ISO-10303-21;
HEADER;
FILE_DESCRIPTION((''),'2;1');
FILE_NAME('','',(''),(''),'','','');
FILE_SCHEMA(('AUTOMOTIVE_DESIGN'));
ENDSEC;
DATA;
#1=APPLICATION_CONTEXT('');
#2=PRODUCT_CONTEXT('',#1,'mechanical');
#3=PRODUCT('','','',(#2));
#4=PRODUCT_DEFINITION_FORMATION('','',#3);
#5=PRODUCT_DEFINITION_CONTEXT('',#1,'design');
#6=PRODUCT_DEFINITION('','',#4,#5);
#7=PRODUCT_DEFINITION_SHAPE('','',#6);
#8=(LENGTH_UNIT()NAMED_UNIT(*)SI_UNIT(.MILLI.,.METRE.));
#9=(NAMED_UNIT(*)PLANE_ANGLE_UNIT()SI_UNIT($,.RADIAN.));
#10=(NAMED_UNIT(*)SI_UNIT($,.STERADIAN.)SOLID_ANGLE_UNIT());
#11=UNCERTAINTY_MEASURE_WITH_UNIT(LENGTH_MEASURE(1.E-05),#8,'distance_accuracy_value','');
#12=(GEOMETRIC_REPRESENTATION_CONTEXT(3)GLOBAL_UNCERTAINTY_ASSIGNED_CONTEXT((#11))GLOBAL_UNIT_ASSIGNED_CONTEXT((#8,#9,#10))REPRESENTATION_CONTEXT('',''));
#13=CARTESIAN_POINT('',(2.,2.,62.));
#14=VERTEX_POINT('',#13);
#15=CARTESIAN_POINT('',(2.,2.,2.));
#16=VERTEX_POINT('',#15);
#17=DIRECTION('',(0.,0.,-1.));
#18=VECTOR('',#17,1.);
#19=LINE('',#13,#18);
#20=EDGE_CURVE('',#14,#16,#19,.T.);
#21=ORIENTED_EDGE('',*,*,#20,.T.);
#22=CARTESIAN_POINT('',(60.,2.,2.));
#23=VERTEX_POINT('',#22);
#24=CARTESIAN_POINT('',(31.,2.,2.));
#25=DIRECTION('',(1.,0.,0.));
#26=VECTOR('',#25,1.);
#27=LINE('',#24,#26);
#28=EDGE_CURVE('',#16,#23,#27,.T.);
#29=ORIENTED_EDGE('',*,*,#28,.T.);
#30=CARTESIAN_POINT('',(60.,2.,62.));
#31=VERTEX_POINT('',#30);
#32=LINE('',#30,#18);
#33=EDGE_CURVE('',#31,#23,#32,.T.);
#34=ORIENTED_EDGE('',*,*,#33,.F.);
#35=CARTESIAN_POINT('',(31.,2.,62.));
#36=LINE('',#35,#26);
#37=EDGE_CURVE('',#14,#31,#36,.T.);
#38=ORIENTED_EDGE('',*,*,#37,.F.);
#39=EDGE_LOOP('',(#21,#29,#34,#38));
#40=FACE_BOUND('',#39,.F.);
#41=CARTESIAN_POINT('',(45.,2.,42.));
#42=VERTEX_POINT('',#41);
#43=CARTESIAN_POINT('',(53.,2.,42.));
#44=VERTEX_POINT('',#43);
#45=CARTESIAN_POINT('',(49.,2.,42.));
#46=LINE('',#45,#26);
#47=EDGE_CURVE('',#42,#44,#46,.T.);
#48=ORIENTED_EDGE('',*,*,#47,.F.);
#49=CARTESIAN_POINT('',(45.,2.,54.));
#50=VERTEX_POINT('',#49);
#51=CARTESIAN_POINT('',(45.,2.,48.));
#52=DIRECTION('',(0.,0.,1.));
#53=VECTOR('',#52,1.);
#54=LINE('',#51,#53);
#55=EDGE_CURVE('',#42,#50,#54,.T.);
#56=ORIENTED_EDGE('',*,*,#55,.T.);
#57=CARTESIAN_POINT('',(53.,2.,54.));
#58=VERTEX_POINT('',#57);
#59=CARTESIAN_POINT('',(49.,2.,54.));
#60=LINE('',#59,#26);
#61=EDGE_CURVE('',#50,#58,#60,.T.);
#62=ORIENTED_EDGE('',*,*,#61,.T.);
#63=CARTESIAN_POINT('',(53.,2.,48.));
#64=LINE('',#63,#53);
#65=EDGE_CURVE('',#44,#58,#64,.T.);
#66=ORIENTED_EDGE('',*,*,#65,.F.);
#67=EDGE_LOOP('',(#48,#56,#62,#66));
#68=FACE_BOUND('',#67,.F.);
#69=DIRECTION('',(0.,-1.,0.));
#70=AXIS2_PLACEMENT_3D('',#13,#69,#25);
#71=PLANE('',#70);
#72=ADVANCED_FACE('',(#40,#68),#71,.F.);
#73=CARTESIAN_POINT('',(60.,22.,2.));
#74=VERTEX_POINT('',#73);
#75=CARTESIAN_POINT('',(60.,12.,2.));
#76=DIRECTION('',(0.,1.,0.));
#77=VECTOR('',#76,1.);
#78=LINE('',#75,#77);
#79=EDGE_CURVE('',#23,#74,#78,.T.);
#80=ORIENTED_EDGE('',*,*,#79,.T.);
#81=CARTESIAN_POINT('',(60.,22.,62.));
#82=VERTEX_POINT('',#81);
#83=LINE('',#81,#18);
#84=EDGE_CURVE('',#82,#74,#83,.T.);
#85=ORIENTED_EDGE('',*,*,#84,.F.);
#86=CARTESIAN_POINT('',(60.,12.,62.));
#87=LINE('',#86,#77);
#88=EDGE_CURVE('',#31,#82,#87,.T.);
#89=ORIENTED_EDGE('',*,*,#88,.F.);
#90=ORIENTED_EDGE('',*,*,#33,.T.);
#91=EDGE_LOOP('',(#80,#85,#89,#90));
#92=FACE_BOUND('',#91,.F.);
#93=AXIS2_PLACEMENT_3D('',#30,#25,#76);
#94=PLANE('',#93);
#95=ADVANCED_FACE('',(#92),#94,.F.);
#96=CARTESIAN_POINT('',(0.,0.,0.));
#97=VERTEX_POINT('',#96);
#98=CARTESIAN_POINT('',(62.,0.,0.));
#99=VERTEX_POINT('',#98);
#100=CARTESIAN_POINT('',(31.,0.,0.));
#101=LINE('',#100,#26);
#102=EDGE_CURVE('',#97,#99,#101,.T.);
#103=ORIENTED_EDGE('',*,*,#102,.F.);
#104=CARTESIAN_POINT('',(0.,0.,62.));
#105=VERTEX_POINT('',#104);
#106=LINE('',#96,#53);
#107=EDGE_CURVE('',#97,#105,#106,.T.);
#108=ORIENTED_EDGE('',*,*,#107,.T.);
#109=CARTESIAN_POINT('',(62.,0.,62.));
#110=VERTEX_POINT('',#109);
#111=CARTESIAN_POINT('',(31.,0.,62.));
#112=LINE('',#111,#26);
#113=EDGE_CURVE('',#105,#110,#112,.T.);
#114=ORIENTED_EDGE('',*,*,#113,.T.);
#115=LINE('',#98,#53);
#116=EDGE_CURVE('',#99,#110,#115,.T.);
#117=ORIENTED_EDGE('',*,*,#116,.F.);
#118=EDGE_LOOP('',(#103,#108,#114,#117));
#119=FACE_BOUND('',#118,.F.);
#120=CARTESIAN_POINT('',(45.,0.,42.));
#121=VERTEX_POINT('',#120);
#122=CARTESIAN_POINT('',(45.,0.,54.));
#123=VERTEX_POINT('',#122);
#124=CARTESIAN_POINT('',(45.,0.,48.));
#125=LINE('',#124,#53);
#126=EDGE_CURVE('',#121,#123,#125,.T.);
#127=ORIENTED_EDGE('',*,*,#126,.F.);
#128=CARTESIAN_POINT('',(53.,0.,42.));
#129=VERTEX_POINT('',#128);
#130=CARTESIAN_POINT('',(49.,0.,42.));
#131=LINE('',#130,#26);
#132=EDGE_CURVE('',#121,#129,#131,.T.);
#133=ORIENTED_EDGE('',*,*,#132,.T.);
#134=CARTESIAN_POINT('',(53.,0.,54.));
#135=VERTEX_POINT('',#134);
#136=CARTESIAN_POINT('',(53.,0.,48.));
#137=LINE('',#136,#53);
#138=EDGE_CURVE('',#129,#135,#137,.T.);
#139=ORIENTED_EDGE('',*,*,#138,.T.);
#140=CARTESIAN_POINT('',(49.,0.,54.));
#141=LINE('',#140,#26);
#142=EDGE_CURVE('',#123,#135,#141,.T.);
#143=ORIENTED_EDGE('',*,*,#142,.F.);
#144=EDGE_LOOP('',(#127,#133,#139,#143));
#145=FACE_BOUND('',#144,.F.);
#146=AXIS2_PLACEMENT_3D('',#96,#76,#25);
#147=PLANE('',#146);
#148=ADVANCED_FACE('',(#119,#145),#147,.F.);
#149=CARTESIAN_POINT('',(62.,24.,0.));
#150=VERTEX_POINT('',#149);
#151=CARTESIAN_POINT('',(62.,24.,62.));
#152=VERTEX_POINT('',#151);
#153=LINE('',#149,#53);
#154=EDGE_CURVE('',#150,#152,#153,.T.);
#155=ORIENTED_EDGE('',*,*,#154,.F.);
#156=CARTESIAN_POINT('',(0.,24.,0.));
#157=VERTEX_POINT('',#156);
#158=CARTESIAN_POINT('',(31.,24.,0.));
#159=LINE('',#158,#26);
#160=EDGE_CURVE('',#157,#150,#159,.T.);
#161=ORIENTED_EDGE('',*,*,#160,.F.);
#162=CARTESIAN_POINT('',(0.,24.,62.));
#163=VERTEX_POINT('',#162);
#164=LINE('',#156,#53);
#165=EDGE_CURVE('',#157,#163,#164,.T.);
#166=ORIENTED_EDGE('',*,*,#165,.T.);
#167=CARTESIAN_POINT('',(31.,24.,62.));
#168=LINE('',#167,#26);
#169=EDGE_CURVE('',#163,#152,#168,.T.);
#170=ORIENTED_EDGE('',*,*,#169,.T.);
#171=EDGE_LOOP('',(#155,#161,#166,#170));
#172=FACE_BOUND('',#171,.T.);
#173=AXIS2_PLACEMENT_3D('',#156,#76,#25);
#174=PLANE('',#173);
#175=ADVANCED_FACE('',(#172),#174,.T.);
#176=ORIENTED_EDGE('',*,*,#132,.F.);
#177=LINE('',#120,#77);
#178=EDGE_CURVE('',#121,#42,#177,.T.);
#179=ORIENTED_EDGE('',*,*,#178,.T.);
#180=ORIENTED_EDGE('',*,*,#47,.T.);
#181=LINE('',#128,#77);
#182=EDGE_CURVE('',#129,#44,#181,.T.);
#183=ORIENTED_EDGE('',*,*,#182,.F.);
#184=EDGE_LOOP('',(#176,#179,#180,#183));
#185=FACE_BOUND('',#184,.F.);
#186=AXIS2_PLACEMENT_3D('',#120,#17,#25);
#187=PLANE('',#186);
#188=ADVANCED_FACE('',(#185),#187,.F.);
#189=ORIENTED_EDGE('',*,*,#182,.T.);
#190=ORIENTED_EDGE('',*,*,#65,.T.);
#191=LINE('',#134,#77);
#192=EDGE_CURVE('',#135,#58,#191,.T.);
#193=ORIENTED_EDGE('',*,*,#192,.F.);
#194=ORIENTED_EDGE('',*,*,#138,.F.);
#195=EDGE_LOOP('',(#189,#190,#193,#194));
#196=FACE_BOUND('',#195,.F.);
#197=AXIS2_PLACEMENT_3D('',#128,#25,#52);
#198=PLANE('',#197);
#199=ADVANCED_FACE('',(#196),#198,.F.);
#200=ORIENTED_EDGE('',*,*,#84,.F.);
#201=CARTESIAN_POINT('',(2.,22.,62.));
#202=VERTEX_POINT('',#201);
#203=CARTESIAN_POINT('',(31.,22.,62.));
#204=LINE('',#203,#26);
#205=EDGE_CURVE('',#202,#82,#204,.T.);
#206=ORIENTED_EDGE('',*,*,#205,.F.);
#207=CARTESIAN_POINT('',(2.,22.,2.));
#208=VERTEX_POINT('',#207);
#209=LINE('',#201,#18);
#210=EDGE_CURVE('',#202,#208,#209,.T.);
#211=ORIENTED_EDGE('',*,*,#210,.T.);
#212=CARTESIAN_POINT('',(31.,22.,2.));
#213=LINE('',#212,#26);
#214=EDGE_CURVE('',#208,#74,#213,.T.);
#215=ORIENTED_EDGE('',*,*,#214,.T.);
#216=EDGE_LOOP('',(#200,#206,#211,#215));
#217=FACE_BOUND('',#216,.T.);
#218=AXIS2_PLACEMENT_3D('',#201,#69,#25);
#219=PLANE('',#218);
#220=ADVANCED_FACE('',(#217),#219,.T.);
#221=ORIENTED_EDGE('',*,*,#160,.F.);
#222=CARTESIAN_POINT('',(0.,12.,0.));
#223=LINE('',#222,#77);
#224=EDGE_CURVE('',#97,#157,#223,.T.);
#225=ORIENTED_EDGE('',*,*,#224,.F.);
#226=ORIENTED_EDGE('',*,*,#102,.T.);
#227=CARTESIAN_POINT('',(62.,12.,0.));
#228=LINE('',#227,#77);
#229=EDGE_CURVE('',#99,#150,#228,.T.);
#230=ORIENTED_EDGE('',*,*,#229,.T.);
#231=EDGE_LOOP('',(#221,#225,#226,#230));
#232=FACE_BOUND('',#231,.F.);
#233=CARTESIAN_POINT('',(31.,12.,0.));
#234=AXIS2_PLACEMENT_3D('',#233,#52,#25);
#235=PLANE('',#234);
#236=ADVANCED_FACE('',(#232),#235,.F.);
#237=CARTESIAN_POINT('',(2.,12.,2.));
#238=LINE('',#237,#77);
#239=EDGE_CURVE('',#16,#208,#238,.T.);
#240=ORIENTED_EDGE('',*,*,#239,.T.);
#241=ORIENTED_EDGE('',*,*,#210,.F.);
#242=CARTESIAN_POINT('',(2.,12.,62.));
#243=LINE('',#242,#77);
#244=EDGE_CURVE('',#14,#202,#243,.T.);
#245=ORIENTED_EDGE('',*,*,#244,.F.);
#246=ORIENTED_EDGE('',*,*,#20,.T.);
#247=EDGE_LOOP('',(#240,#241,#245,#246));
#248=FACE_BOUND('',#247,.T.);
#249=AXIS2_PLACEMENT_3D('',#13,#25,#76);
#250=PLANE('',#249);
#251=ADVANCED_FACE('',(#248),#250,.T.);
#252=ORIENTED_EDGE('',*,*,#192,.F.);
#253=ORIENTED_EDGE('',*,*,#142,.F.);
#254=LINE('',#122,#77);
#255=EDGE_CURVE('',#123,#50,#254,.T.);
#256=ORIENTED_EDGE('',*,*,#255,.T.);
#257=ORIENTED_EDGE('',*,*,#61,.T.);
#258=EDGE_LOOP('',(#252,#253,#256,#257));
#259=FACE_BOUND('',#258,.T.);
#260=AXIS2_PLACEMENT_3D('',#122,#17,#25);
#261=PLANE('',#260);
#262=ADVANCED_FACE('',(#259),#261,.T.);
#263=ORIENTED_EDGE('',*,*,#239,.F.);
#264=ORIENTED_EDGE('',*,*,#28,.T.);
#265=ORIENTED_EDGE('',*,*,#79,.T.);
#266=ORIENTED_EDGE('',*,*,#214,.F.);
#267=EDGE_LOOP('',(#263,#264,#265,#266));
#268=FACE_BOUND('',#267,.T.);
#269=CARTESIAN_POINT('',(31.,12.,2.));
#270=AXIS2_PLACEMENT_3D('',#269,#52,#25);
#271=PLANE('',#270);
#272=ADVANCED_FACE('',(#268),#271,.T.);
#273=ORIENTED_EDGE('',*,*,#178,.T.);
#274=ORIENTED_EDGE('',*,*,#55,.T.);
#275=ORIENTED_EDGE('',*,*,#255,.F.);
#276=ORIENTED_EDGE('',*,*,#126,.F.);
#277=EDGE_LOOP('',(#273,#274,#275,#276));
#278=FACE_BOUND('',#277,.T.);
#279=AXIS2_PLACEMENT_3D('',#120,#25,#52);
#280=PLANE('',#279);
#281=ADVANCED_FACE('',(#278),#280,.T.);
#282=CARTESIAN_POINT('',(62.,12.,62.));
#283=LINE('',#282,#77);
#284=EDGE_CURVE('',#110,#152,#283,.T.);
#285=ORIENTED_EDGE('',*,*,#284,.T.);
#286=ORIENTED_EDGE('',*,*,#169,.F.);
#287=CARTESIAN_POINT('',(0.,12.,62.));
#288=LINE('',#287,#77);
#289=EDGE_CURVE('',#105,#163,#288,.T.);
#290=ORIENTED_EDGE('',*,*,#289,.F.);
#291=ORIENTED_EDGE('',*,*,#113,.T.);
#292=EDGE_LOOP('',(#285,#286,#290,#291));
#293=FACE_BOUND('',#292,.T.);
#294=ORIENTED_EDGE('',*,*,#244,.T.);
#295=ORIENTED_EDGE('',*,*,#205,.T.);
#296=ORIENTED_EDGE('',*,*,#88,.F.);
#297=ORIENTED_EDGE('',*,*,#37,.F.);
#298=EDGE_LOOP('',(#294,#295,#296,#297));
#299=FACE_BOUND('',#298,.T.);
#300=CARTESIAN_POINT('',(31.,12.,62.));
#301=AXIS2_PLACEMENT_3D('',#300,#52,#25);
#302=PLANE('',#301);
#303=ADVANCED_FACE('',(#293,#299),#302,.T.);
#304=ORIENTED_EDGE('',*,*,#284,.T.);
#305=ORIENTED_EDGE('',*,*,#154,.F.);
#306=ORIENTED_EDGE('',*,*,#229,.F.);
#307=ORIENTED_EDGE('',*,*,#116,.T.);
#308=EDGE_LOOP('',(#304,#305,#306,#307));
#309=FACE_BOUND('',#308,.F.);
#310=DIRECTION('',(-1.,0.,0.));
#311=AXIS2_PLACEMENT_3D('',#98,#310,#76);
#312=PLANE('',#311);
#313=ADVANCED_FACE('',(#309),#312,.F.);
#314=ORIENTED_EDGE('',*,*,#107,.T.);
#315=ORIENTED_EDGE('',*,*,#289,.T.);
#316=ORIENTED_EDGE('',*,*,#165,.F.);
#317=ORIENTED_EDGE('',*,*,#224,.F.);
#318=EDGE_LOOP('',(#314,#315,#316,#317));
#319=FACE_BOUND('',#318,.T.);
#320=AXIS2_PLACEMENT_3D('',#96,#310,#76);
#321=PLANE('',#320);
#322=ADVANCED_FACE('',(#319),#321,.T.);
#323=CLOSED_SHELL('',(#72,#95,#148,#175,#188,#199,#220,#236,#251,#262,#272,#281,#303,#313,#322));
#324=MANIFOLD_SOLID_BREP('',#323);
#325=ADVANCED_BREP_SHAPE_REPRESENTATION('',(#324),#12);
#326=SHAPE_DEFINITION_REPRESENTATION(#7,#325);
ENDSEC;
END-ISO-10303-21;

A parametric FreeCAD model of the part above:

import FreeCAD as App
import Part
import Sketcher
Q = App.Units.Quantity


def add_polygon(sketch, points):
    """Adds a closed chain of lines whose ends are joined by coincident constraints."""
    first, n = sketch.GeometryCount, len(points)
    for a, b in zip(points, points[1:] + points[:1]):
        sketch.addGeometry(Part.LineSegment(App.Vector(*a, 0), App.Vector(*b, 0)), False)
    for i in range(n):
        sketch.addConstraint(Sketcher.Constraint("Coincident", first + i, 2, first + (i + 1) % n, 1))

doc = App.newDocument("Part")
body = doc.addObject("PartDesign::Body", "Body")

# Sketch on XY plane
sketch1 = doc.addObject("Sketcher::SketchObject", "Sketch")
body.addObject(sketch1)
sketch1.AttachmentSupport = (doc.XY_Plane, [""])
sketch1.MapMode = "FlatFace"
add_polygon(sketch1, [(0, 24), (0, 0), (62, 0), (62, 24)])  # lines 0-3
sketch1.addConstraint([
    Sketcher.Constraint("Vertical", 0),
    Sketcher.Constraint("Horizontal", 1),
    Sketcher.Constraint("Vertical", 2),
    Sketcher.Constraint("Horizontal", 3),
    Sketcher.Constraint("Coincident", 0, 2, -1, 1),
    Sketcher.Constraint("DistanceX", 1, 1, 1, 2, Q("62 mm")),
    Sketcher.Constraint("DistanceY", 0, 2, 0, 1, Q("24 mm")),
])
pad1 = doc.addObject("PartDesign::Pad", "Pad")
body.addObject(pad1)
pad1.Profile = sketch1
pad1.Length = 62

# Sketch on XY plane
sketch2 = doc.addObject("Sketcher::SketchObject", "Sketch001")
body.addObject(sketch2)
sketch2.AttachmentSupport = (doc.XY_Plane, [""])
sketch2.MapMode = "FlatFace"
sketch2.AttachmentOffset = App.Placement(App.Vector(0, 0, 62), App.Rotation())
add_polygon(sketch2, [(2, 22), (2, 2), (60, 2), (60, 22)])  # lines 0-3
sketch2.addConstraint([
    Sketcher.Constraint("Vertical", 0),
    Sketcher.Constraint("Horizontal", 1),
    Sketcher.Constraint("Vertical", 2),
    Sketcher.Constraint("Horizontal", 3),
    Sketcher.Constraint("DistanceX", 1, 1, 1, 2, Q("58 mm")),
    Sketcher.Constraint("DistanceY", 0, 2, 0, 1, Q("20 mm")),
    Sketcher.Constraint("DistanceX", -1, 1, 0, 2, Q("2 mm")),
    Sketcher.Constraint("DistanceY", -1, 1, 0, 2, Q("2 mm")),
])
pocket1 = doc.addObject("PartDesign::Pocket", "Pocket")
body.addObject(pocket1)
pocket1.Profile = sketch2
pocket1.Length = 60

# Sketch on XZ plane
sketch3 = doc.addObject("Sketcher::SketchObject", "Sketch002")
body.addObject(sketch3)
sketch3.AttachmentSupport = (doc.XZ_Plane, [""])
sketch3.MapMode = "FlatFace"
add_polygon(sketch3, [(45, 54), (45, 42), (53, 42), (53, 54)])  # lines 0-3
sketch3.addConstraint([
    Sketcher.Constraint("Vertical", 0),
    Sketcher.Constraint("Horizontal", 1),
    Sketcher.Constraint("Vertical", 2),
    Sketcher.Constraint("Horizontal", 3),
    Sketcher.Constraint("DistanceX", 1, 1, 1, 2, Q("8 mm")),
    Sketcher.Constraint("DistanceY", 0, 2, 0, 1, Q("12 mm")),
    Sketcher.Constraint("DistanceX", -1, 1, 0, 2, Q("45 mm")),
    Sketcher.Constraint("DistanceY", -1, 1, 0, 2, Q("42 mm")),
])
pocket2 = doc.addObject("PartDesign::Pocket", "Pocket001")
body.addObject(pocket2)
pocket2.Profile = sketch3
pocket2.Length = 2

doc.recompute()
